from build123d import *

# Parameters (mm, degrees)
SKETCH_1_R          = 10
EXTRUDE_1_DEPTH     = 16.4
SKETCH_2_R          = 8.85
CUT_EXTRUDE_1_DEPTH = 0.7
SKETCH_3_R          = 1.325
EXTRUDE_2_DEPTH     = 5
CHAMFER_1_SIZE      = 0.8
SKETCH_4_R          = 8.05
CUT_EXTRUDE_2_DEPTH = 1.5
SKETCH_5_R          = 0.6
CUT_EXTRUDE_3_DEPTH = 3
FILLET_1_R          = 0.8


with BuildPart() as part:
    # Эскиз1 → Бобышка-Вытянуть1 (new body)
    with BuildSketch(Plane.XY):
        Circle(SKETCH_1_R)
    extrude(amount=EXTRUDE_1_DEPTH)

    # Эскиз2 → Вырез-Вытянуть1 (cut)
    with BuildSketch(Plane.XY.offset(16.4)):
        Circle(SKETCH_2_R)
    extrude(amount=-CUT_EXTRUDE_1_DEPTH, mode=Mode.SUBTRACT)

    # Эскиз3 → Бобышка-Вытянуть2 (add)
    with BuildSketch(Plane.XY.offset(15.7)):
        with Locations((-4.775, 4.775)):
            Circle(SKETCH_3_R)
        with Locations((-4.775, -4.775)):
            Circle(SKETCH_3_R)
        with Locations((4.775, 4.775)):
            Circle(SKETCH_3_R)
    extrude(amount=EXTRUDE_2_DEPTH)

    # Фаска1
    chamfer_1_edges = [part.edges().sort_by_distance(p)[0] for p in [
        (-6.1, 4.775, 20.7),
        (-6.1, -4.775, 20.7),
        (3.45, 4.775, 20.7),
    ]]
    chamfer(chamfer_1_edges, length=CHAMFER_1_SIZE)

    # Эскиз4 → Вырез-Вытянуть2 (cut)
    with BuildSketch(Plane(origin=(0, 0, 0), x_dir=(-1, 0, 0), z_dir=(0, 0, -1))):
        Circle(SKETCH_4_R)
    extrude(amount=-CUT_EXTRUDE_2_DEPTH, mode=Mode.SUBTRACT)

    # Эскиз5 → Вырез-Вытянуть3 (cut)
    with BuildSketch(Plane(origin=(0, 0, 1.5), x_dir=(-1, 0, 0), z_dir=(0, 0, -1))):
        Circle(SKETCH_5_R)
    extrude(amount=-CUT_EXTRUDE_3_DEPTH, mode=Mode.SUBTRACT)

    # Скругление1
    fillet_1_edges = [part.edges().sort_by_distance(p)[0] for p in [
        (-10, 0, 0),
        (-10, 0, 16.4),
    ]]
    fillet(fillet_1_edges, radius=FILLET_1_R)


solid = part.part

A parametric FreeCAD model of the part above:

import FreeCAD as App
import Part
import Sketcher

V = App.Vector


def edges_at(feature, points):
    """Names of the edges that pass closest to the given points."""
    edges = feature.Shape.Edges
    near = lambda p: min(range(len(edges)), key=lambda i: edges[i].distToShape(Part.Vertex(*p))[0])
    return sorted({f"Edge{near(p) + 1}" for p in points})

doc = App.newDocument("Part")
body = doc.addObject("PartDesign::Body", "Body")

# Sketch on XY plane
sketch1 = body.newObject("Sketcher::SketchObject", "Sketch")
sketch1.AttachmentSupport = (doc.getObject("XY_Plane"), [""])
sketch1.MapMode = "FlatFace"
sketch1.addGeometry(Part.Circle(V(0, 0, 0), V(0, 0, 1), 10), False)
sketch1.addConstraint(Sketcher.Constraint("Coincident", 0, 3, -1, 1))
sketch1.addConstraint(Sketcher.Constraint("Diameter", 0, 20.0))
pad1 = body.newObject("PartDesign::Pad", "Pad")
pad1.Profile = sketch1
pad1.Length = 16.4

# Sketch on XY plane
sketch2 = body.newObject("Sketcher::SketchObject", "Sketch001")
sketch2.AttachmentSupport = (doc.getObject("XY_Plane"), [""])
sketch2.MapMode = "FlatFace"
sketch2.AttachmentOffset = App.Placement(V(0, 0, 16.4), App.Rotation())
sketch2.addGeometry(Part.Circle(V(0, 0, 0), V(0, 0, 1), 9), False)
sketch2.addConstraint(Sketcher.Constraint("Coincident", 0, 3, -1, 1))
sketch2.addConstraint(Sketcher.Constraint("Diameter", 0, 17.7))
pocket1 = body.newObject("PartDesign::Pocket", "Pocket")
pocket1.Profile = sketch2
pocket1.Length = 0.7

# Sketch on XY plane
sketch3 = body.newObject("Sketcher::SketchObject", "Sketch002")
sketch3.AttachmentSupport = (doc.getObject("XY_Plane"), [""])
sketch3.MapMode = "FlatFace"
sketch3.AttachmentOffset = App.Placement(V(0, 0, 15.7), App.Rotation())
sketch3.addGeometry(Part.Circle(V(-4.8, 4.8, 0), V(0, 0, 1), 1.3), False)
sketch3.addGeometry(Part.Circle(V(-4.8, -4.8, 0), V(0, 0, 1), 1.3), False)
sketch3.addGeometry(Part.Circle(V(4.8, 4.8, 0), V(0, 0, 1), 1.3), False)
sketch3.addConstraint(Sketcher.Constraint("Equal", 0, 1))
sketch3.addConstraint(Sketcher.Constraint("Equal", 1, 2))
sketch3.addConstraint(Sketcher.Constraint("Symmetric", 1, 3, 2, 3, -1, 1))
sketch3.addConstraint(Sketcher.Constraint("Symmetric", 0, 3, 2, 3, -2))
sketch3.addConstraint(Sketcher.Constraint("Diameter", 0, 2.65))
sketch3.addConstraint(Sketcher.Constraint("DistanceY", 1, 3, 0, 3, 9.55))
sketch3.addConstraint(Sketcher.Constraint("DistanceX", 0, 3, 2, 3, 9.55))
pad2 = body.newObject("PartDesign::Pad", "Pad001")
pad2.Profile = sketch3
pad2.Length = 5
doc.recompute()

chamfer = body.newObject("PartDesign::Chamfer", "Chamfer")
chamfer.Base = (pad2, edges_at(pad2, [(-6.1, 4.775, 20.7), (-6.1, -4.775, 20.7), (3.45, 4.775, 20.7)]))
chamfer.Size = 0.8

# Sketch on XY plane
sketch4 = body.newObject("Sketcher::SketchObject", "Sketch003")
sketch4.AttachmentSupport = (doc.getObject("XY_Plane"), [""])
sketch4.MapMode = "FlatFace"
sketch4.addGeometry(Part.Circle(V(0, 0, 0), V(0, 0, 1), 8), False)
sketch4.addConstraint(Sketcher.Constraint("Coincident", 0, 3, -1, 1))
sketch4.addConstraint(Sketcher.Constraint("Diameter", 0, 16.1))
pocket2 = body.newObject("PartDesign::Pocket", "Pocket001")
pocket2.Profile = sketch4
pocket2.Length = 1.5
pocket2.Reversed = True

# Sketch on XY plane
sketch5 = body.newObject("Sketcher::SketchObject", "Sketch004")
sketch5.AttachmentSupport = (doc.getObject("XY_Plane"), [""])
sketch5.MapMode = "FlatFace"
sketch5.AttachmentOffset = App.Placement(V(0, 0, 1.5), App.Rotation())
sketch5.addGeometry(Part.Circle(V(0, 0, 0), V(0, 0, 1), 0.6), False)
sketch5.addConstraint(Sketcher.Constraint("Coincident", 0, 3, -1, 1))
sketch5.addConstraint(Sketcher.Constraint("Diameter", 0, 1.2))
pocket3 = body.newObject("PartDesign::Pocket", "Pocket002")
pocket3.Profile = sketch5
pocket3.Length = 3
pocket3.Reversed = True
doc.recompute()

fillet = body.newObject("PartDesign::Fillet", "Fillet")
fillet.Base = (pocket3, edges_at(pocket3, [(-10, 0, 0), (-10, 0, 16.4)]))
fillet.Radius = 0.8

doc.recompute()
